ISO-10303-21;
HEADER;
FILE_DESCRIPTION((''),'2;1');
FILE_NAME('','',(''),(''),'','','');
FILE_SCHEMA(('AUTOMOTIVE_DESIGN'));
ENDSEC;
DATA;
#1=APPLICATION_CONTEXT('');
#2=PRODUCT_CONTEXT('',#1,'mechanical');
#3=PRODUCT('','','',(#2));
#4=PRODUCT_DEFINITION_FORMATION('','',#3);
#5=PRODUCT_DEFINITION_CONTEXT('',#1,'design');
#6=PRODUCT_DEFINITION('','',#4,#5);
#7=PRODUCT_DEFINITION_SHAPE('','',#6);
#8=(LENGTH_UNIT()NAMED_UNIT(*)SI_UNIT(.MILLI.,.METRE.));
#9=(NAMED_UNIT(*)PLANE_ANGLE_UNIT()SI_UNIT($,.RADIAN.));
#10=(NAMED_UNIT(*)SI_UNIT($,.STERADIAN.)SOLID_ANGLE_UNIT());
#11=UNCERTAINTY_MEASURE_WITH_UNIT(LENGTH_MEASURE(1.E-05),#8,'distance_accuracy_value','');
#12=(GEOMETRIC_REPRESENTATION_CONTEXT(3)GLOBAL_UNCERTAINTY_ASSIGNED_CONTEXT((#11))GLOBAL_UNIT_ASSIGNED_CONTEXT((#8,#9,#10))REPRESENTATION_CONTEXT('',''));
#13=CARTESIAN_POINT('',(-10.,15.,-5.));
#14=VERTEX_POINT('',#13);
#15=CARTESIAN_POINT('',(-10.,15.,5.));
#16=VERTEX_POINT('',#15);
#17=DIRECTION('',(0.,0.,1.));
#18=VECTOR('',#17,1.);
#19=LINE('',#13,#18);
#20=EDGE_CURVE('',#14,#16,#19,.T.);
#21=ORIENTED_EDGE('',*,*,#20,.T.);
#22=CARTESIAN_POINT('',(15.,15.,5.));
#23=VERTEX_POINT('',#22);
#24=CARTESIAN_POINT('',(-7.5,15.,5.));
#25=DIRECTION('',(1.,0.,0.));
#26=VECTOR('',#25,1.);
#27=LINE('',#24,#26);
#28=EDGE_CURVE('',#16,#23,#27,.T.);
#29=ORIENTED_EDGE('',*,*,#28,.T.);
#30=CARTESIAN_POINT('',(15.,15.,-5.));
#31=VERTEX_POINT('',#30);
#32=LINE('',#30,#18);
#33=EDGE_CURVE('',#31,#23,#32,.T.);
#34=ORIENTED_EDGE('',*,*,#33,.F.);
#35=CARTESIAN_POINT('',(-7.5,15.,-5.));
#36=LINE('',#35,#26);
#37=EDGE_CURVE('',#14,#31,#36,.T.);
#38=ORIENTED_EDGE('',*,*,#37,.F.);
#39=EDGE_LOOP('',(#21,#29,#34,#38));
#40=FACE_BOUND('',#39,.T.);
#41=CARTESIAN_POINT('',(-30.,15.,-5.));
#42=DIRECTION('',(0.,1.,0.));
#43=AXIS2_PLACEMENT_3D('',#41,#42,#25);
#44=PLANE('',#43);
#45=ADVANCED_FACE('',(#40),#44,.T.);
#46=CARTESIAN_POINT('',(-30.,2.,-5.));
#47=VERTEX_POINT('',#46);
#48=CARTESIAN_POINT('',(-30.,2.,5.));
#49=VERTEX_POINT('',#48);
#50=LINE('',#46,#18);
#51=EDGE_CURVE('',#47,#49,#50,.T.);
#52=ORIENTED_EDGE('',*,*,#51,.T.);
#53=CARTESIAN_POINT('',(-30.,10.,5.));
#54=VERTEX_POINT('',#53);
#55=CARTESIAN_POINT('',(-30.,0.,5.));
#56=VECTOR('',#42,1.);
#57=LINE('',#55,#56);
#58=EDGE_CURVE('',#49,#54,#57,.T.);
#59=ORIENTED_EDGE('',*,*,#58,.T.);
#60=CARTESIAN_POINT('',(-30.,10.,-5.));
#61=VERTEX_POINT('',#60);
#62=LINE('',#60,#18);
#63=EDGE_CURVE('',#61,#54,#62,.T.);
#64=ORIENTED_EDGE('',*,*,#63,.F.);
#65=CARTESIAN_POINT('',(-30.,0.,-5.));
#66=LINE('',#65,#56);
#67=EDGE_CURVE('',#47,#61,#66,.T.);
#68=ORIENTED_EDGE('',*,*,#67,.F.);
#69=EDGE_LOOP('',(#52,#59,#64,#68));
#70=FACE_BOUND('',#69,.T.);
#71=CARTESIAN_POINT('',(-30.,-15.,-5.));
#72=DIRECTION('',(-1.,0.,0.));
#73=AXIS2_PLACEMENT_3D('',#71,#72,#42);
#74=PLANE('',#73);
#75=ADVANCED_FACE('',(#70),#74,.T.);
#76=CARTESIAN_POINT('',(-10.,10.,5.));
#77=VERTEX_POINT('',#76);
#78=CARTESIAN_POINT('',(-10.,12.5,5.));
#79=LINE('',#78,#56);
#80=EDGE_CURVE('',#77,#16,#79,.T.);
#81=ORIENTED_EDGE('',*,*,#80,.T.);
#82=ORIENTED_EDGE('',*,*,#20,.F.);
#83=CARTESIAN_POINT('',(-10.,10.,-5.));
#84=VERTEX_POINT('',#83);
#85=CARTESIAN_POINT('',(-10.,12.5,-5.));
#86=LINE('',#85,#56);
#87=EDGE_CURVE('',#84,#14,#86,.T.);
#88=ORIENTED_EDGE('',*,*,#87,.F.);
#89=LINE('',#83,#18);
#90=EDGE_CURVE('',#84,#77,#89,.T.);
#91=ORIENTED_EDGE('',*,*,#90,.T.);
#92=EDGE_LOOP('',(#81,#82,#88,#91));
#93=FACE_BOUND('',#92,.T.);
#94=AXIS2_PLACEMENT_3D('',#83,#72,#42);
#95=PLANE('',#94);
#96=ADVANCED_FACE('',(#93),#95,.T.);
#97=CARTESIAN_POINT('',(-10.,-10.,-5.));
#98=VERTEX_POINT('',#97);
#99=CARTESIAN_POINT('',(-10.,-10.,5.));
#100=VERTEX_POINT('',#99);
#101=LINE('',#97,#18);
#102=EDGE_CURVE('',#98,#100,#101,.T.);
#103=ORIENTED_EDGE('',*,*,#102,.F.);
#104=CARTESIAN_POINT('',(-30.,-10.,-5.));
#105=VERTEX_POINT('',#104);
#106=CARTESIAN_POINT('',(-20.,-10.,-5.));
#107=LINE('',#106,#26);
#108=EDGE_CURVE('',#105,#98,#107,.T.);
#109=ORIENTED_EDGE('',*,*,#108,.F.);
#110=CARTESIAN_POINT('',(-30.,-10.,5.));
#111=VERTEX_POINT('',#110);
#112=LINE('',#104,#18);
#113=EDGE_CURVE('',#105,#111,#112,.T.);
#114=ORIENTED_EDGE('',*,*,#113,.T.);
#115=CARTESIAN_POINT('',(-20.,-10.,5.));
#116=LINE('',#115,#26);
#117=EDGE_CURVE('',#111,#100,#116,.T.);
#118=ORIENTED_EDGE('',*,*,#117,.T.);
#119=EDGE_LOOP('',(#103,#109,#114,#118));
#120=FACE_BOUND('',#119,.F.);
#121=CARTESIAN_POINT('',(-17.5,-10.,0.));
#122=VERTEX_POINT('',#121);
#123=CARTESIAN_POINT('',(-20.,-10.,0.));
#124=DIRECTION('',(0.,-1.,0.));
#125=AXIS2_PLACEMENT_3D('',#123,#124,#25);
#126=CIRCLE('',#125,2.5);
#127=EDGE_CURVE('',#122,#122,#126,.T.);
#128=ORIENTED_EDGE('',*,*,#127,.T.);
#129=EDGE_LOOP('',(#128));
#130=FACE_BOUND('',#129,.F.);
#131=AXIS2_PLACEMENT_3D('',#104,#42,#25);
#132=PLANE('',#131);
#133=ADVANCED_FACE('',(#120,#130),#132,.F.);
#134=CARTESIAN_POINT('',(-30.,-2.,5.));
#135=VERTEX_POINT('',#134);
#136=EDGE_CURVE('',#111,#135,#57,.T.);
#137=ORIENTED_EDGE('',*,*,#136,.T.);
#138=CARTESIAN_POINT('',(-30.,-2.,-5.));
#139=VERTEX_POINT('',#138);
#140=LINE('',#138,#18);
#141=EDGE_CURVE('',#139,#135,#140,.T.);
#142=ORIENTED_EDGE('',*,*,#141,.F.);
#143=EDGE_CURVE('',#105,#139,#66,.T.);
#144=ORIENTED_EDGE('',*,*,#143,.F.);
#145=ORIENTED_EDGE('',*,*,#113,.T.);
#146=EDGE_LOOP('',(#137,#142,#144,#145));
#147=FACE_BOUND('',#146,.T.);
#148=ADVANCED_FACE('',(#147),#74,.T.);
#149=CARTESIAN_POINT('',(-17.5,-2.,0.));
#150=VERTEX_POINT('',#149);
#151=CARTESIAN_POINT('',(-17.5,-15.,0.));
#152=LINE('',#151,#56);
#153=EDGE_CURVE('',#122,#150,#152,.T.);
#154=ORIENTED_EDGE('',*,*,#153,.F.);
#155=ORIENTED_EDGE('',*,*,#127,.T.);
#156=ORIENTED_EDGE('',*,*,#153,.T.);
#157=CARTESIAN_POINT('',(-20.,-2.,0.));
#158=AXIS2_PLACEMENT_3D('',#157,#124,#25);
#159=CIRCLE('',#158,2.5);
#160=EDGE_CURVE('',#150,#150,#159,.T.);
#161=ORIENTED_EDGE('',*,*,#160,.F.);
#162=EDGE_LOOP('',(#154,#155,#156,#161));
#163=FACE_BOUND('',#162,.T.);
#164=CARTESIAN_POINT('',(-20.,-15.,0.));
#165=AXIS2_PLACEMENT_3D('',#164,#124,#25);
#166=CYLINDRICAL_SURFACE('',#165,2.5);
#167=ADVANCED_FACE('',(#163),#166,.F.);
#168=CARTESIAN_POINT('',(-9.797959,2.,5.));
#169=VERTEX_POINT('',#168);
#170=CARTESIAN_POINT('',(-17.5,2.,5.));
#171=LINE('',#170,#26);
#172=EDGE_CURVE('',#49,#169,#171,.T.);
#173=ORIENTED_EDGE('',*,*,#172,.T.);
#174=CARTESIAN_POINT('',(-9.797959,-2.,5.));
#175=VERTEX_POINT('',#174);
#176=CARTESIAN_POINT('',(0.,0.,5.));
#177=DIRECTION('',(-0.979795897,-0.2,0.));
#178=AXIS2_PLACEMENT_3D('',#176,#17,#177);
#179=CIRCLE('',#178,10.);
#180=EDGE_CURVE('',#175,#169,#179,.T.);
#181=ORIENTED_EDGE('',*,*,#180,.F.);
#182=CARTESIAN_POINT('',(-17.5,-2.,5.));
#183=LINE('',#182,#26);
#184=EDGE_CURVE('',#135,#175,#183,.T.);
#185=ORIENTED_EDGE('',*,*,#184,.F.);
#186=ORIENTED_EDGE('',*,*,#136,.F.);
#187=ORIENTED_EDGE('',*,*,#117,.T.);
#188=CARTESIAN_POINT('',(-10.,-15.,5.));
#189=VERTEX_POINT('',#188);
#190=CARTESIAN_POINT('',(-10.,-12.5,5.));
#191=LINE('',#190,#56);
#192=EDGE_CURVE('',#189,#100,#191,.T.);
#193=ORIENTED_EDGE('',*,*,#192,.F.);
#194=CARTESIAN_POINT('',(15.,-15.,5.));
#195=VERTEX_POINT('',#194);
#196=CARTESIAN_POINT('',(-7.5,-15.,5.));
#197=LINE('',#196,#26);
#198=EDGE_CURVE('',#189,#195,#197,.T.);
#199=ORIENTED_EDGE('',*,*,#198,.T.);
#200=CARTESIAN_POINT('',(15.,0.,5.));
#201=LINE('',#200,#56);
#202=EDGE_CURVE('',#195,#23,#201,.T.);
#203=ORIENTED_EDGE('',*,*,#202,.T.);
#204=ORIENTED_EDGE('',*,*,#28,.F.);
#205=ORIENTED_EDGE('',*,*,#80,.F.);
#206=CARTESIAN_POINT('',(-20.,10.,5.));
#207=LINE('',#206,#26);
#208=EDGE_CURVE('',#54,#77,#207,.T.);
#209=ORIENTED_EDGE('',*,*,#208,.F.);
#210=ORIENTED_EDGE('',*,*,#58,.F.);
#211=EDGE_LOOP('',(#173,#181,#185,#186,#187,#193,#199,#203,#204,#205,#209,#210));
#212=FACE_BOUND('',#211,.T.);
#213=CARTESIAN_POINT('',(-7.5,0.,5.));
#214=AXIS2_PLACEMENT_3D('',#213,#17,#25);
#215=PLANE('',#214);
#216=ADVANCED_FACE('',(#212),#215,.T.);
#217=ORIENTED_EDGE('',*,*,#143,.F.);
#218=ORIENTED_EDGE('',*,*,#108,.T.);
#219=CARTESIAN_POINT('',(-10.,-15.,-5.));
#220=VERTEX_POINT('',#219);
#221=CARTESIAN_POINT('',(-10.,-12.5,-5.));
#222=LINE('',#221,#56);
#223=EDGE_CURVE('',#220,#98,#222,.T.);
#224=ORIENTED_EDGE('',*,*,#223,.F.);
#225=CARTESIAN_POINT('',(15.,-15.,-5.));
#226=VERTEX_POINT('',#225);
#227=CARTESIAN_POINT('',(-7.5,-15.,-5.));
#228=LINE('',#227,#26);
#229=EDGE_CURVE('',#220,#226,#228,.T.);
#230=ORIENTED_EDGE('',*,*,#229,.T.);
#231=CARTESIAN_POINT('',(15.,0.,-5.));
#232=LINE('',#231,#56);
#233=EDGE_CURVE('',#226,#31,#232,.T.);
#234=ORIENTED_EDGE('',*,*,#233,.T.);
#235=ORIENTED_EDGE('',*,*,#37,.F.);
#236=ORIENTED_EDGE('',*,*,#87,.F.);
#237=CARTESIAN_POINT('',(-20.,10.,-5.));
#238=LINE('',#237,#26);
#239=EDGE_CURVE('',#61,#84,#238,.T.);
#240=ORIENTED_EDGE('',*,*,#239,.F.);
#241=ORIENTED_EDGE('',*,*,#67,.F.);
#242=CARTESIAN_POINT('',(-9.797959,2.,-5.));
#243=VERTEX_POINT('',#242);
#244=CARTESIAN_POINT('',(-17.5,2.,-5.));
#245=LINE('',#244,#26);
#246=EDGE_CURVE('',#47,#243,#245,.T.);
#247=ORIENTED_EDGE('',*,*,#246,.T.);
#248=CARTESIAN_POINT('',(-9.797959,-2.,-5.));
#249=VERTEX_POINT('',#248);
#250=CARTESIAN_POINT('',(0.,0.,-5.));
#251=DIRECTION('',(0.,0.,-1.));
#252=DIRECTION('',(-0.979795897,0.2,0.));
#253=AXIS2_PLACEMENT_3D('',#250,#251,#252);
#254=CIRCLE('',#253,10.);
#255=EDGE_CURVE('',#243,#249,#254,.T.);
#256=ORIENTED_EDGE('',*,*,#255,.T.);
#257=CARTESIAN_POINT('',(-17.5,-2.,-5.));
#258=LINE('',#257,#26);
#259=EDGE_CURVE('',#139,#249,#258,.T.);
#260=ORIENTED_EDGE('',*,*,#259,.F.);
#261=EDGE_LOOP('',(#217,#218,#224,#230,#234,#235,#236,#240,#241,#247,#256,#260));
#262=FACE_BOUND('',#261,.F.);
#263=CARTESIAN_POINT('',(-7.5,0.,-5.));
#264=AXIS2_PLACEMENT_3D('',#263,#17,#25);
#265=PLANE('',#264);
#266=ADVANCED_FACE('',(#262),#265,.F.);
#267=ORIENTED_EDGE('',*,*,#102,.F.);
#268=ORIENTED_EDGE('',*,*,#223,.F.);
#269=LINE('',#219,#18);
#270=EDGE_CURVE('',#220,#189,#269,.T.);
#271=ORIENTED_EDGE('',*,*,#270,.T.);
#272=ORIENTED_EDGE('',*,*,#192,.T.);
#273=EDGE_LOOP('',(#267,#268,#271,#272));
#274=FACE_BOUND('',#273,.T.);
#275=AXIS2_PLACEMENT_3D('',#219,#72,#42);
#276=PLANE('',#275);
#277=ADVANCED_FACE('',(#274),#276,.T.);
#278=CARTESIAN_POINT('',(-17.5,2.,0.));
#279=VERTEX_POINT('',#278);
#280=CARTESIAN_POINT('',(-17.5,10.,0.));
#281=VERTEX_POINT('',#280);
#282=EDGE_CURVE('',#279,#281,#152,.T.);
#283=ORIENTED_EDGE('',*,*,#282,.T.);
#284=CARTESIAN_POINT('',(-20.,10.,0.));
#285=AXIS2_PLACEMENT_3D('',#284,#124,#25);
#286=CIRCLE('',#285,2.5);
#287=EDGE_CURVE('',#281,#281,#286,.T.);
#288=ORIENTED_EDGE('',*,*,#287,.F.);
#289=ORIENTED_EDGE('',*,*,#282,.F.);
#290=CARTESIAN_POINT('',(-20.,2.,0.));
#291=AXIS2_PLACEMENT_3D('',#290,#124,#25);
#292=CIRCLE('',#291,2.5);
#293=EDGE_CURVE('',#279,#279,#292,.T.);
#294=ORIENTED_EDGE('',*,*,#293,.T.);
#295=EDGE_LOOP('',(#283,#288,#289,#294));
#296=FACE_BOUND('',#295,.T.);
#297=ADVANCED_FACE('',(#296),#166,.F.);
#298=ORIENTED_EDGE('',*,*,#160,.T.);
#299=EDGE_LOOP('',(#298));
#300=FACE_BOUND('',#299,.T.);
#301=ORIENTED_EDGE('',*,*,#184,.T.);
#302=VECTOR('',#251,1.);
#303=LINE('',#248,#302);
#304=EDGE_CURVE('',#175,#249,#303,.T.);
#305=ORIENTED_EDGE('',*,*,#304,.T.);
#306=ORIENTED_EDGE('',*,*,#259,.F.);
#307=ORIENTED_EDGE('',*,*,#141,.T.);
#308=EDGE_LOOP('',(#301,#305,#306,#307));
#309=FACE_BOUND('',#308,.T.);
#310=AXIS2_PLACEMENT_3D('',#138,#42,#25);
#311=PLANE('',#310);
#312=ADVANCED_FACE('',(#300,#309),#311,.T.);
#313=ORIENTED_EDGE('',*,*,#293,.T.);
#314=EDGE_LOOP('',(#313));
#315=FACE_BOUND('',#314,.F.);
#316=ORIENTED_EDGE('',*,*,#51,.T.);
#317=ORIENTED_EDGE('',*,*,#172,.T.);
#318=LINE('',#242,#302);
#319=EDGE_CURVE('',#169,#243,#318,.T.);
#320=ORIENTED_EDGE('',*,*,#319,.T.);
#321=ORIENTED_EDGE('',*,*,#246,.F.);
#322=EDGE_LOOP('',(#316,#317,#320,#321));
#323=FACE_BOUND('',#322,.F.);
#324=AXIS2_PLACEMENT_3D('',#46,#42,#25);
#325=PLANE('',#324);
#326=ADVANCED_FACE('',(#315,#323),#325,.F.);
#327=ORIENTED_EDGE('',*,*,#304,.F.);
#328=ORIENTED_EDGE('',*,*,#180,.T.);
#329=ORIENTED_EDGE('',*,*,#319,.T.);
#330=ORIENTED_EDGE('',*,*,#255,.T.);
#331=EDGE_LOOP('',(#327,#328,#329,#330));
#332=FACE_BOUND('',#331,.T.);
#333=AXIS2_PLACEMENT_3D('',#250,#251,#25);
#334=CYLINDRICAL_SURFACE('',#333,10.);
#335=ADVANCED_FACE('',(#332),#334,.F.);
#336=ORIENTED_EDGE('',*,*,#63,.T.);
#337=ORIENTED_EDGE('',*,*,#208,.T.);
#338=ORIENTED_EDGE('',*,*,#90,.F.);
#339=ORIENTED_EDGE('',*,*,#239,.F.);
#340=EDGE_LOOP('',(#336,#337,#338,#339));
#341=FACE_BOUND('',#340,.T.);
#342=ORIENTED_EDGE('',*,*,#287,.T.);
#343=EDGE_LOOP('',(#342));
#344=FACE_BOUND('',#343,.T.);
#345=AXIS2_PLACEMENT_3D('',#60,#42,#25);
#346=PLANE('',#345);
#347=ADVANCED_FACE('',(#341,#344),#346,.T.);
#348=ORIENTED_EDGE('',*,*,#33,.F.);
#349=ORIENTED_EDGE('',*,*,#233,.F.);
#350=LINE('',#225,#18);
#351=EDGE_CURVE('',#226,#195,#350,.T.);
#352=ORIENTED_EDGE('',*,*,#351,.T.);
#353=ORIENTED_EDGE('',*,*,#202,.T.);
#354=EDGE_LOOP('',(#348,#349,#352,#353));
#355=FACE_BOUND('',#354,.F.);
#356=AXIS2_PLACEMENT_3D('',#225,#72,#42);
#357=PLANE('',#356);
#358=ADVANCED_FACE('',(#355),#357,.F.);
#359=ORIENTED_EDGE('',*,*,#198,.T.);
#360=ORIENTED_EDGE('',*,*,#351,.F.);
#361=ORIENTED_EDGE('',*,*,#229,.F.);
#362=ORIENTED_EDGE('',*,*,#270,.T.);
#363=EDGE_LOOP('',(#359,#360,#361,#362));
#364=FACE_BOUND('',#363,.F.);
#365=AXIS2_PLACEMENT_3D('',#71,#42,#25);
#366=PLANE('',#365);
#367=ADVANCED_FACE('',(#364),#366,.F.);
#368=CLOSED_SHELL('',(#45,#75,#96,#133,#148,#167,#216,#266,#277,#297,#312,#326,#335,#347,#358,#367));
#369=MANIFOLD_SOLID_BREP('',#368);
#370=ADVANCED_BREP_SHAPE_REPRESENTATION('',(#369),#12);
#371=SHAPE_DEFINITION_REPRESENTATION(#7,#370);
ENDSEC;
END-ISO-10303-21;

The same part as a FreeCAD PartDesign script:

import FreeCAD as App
import Part
import Sketcher

V = App.Vector
Q = App.Units.Quantity

doc = App.newDocument("Part")
body = doc.addObject("PartDesign::Body", "Body")

# Sketch on XY plane
sketch1 = body.newObject("Sketcher::SketchObject", "Sketch")
sketch1.AttachmentSupport = (doc.getObject("XY_Plane"), [""])
sketch1.MapMode = "FlatFace"
sketch1.addGeometry(Part.Circle(V(0, 0, 0), V(0, 0, 1), 2.5), False)
sketch1.addConstraint([
    Sketcher.Constraint("Coincident", 0, 3, -1, 1),
    Sketcher.Constraint("Diameter", 0, Q("5 mm")),
])
pad1 = body.newObject("PartDesign::Pad", "Pad")
pad1.Profile = sketch1
pad1.Length = 30
body2 = doc.addObject("PartDesign::Body", "Body001")
doc.recompute()

body.Placement = App.Placement(V(0, 0, 0), App.Rotation(V(1, 0, 0), 270))
boolean = body2.newObject("PartDesign::Boolean", "Boolean")
boolean.Type = "Fuse"
boolean.addObjects([body])
body3 = doc.addObject("PartDesign::Body", "Body002")
doc.recompute()

body2.Placement = App.Placement(V(-20, -15, 0), App.Rotation(V(0, 0, 1), 0))
boolean2 = body3.newObject("PartDesign::Boolean", "Boolean001")
boolean2.Type = "Fuse"
boolean2.addObjects([body2])
body4 = doc.addObject("PartDesign::Body", "Body003")

# Sketch on XY plane
sketch2 = body4.newObject("Sketcher::SketchObject", "Sketch001")
sketch2.AttachmentSupport = (doc.getObject("XY_Plane003"), [""])
sketch2.MapMode = "FlatFace"
sketch2.AttachmentOffset = App.Placement(V(0, 0, -5), App.Rotation())
sketch2.addGeometry([
    Part.LineSegment(V(-30, 2, 0), V(-30, -2, 0)),
    Part.LineSegment(V(-30, -2, 0), V(-5, -2, 0)),
    Part.LineSegment(V(-5, -2, 0), V(-5, 2, 0)),
    Part.LineSegment(V(-5, 2, 0), V(-30, 2, 0)),
], False)
sketch2.addConstraint([
    Sketcher.Constraint("Coincident", 0, 2, 1, 1),
    Sketcher.Constraint("Coincident", 1, 2, 2, 1),
    Sketcher.Constraint("Coincident", 2, 2, 3, 1),
    Sketcher.Constraint("Coincident", 3, 2, 0, 1),
    Sketcher.Constraint("Vertical", 0),
    Sketcher.Constraint("Horizontal", 1),
    Sketcher.Constraint("Vertical", 2),
    Sketcher.Constraint("Horizontal", 3),
    Sketcher.Constraint("DistanceX", 1, 1, 1, 2, Q("25 mm")),
    Sketcher.Constraint("DistanceY", 0, 2, 0, 1, Q("4 mm")),
    Sketcher.Constraint("DistanceX", 0, 2, -1, 1, Q("30 mm")),
    Sketcher.Constraint("DistanceY", 0, 2, -1, 1, Q("2 mm")),
])
pad2 = body4.newObject("PartDesign::Pad", "Pad001")
pad2.Profile = sketch2
pad2.Length = 10
body5 = doc.addObject("PartDesign::Body", "Body004")

# Sketch on XY plane
sketch3 = body5.newObject("Sketcher::SketchObject", "Sketch002")
sketch3.AttachmentSupport = (doc.getObject("XY_Plane004"), [""])
sketch3.MapMode = "FlatFace"
sketch3.AttachmentOffset = App.Placement(V(0, 0, -5), App.Rotation())
sketch3.addGeometry([
    Part.LineSegment(V(-30, -10, 0), V(-30, -15, 0)),
    Part.LineSegment(V(-30, -15, 0), V(-10, -15, 0)),
    Part.LineSegment(V(-10, -15, 0), V(-10, -10, 0)),
    Part.LineSegment(V(-10, -10, 0), V(-30, -10, 0)),
], False)
sketch3.addConstraint([
    Sketcher.Constraint("Coincident", 0, 2, 1, 1),
    Sketcher.Constraint("Coincident", 1, 2, 2, 1),
    Sketcher.Constraint("Coincident", 2, 2, 3, 1),
    Sketcher.Constraint("Coincident", 3, 2, 0, 1),
    Sketcher.Constraint("Vertical", 0),
    Sketcher.Constraint("Horizontal", 1),
    Sketcher.Constraint("Vertical", 2),
    Sketcher.Constraint("Horizontal", 3),
    Sketcher.Constraint("DistanceX", 1, 1, 1, 2, Q("20 mm")),
    Sketcher.Constraint("DistanceY", 0, 2, 0, 1, Q("5 mm")),
    Sketcher.Constraint("DistanceX", 0, 2, -1, 1, Q("30 mm")),
    Sketcher.Constraint("DistanceY", 0, 2, -1, 1, Q("15 mm")),
])
pad3 = body5.newObject("PartDesign::Pad", "Pad002")
pad3.Profile = sketch3
pad3.Length = 10
body6 = doc.addObject("PartDesign::Body", "Body005")

# Sketch on XY plane
sketch4 = body6.newObject("Sketcher::SketchObject", "Sketch003")
sketch4.AttachmentSupport = (doc.getObject("XY_Plane005"), [""])
sketch4.MapMode = "FlatFace"
sketch4.AttachmentOffset = App.Placement(V(0, 0, -5), App.Rotation())
sketch4.addGeometry([
    Part.LineSegment(V(-30, 15, 0), V(-30, 10, 0)),
    Part.LineSegment(V(-30, 10, 0), V(-10, 10, 0)),
    Part.LineSegment(V(-10, 10, 0), V(-10, 15, 0)),
    Part.LineSegment(V(-10, 15, 0), V(-30, 15, 0)),
], False)
sketch4.addConstraint([
    Sketcher.Constraint("Coincident", 0, 2, 1, 1),
    Sketcher.Constraint("Coincident", 1, 2, 2, 1),
    Sketcher.Constraint("Coincident", 2, 2, 3, 1),
    Sketcher.Constraint("Coincident", 3, 2, 0, 1),
    Sketcher.Constraint("Vertical", 0),
    Sketcher.Constraint("Horizontal", 1),
    Sketcher.Constraint("Vertical", 2),
    Sketcher.Constraint("Horizontal", 3),
    Sketcher.Constraint("DistanceX", 1, 1, 1, 2, Q("20 mm")),
    Sketcher.Constraint("DistanceY", 0, 2, 0, 1, Q("5 mm")),
    Sketcher.Constraint("DistanceX", 0, 2, -1, 1, Q("30 mm")),
    Sketcher.Constraint("DistanceY", -1, 1, 0, 2, Q("10 mm")),
])
pad4 = body6.newObject("PartDesign::Pad", "Pad003")
pad4.Profile = sketch4
pad4.Length = 10
body7 = doc.addObject("PartDesign::Body", "Body006")
body7.AllowCompound = True

# Sketch on XY plane
sketch5 = body7.newObject("Sketcher::SketchObject", "Sketch004")
sketch5.AttachmentSupport = (doc.getObject("XY_Plane006"), [""])
sketch5.MapMode = "FlatFace"
sketch5.AttachmentOffset = App.Placement(V(0, 0, -5), App.Rotation())
sketch5.addGeometry(Part.Circle(V(0, 0, 0), V(0, 0, 1), 10), False)
sketch5.addConstraint([
    Sketcher.Constraint("Coincident", 0, 3, -1, 1),
    Sketcher.Constraint("Diameter", 0, Q("20 mm")),
])
pad5 = body7.newObject("PartDesign::Pad", "Pad004")
pad5.Profile = sketch5
pad5.Length = 10
doc.recompute()

boolean3 = body7.newObject("PartDesign::Boolean", "Boolean002")
boolean3.Type = "Fuse"
boolean3.addObjects([body3])
doc.recompute()

boolean4 = body7.newObject("PartDesign::Boolean", "Boolean003")
boolean4.Type = "Fuse"
boolean4.addObjects([body4])
doc.recompute()

boolean5 = body7.newObject("PartDesign::Boolean", "Boolean004")
boolean5.Type = "Fuse"
boolean5.addObjects([body5])
doc.recompute()

boolean6 = body7.newObject("PartDesign::Boolean", "Boolean005")
boolean6.Type = "Fuse"
boolean6.addObjects([body6])
body8 = doc.addObject("PartDesign::Body", "Body007")

# Sketch on XY plane
sketch6 = body8.newObject("Sketcher::SketchObject", "Sketch005")
sketch6.AttachmentSupport = (doc.getObject("XY_Plane007"), [""])
sketch6.MapMode = "FlatFace"
sketch6.AttachmentOffset = App.Placement(V(0, 0, -5), App.Rotation())
sketch6.addGeometry([
    Part.LineSegment(V(-30, 15, 0), V(-30, -15, 0)),
    Part.LineSegment(V(-30, -15, 0), V(15, -15, 0)),
    Part.LineSegment(V(15, -15, 0), V(15, 15, 0)),
    Part.LineSegment(V(15, 15, 0), V(-30, 15, 0)),
], False)
sketch6.addConstraint([
    Sketcher.Constraint("Coincident", 0, 2, 1, 1),
    Sketcher.Constraint("Coincident", 1, 2, 2, 1),
    Sketcher.Constraint("Coincident", 2, 2, 3, 1),
    Sketcher.Constraint("Coincident", 3, 2, 0, 1),
    Sketcher.Constraint("Vertical", 0),
    Sketcher.Constraint("Horizontal", 1),
    Sketcher.Constraint("Vertical", 2),
    Sketcher.Constraint("Horizontal", 3),
    Sketcher.Constraint("DistanceX", 1, 1, 1, 2, Q("45 mm")),
    Sketcher.Constraint("DistanceY", 0, 2, 0, 1, Q("30 mm")),
    Sketcher.Constraint("DistanceX", 0, 2, -1, 1, Q("30 mm")),
    Sketcher.Constraint("DistanceY", 0, 2, -1, 1, Q("15 mm")),
])
pad6 = body8.newObject("PartDesign::Pad", "Pad005")
pad6.Profile = sketch6
pad6.Length = 10
doc.recompute()

boolean7 = body8.newObject("PartDesign::Boolean", "Boolean006")
boolean7.Type = "Cut"
boolean7.addObjects([body7])

doc.recompute()
